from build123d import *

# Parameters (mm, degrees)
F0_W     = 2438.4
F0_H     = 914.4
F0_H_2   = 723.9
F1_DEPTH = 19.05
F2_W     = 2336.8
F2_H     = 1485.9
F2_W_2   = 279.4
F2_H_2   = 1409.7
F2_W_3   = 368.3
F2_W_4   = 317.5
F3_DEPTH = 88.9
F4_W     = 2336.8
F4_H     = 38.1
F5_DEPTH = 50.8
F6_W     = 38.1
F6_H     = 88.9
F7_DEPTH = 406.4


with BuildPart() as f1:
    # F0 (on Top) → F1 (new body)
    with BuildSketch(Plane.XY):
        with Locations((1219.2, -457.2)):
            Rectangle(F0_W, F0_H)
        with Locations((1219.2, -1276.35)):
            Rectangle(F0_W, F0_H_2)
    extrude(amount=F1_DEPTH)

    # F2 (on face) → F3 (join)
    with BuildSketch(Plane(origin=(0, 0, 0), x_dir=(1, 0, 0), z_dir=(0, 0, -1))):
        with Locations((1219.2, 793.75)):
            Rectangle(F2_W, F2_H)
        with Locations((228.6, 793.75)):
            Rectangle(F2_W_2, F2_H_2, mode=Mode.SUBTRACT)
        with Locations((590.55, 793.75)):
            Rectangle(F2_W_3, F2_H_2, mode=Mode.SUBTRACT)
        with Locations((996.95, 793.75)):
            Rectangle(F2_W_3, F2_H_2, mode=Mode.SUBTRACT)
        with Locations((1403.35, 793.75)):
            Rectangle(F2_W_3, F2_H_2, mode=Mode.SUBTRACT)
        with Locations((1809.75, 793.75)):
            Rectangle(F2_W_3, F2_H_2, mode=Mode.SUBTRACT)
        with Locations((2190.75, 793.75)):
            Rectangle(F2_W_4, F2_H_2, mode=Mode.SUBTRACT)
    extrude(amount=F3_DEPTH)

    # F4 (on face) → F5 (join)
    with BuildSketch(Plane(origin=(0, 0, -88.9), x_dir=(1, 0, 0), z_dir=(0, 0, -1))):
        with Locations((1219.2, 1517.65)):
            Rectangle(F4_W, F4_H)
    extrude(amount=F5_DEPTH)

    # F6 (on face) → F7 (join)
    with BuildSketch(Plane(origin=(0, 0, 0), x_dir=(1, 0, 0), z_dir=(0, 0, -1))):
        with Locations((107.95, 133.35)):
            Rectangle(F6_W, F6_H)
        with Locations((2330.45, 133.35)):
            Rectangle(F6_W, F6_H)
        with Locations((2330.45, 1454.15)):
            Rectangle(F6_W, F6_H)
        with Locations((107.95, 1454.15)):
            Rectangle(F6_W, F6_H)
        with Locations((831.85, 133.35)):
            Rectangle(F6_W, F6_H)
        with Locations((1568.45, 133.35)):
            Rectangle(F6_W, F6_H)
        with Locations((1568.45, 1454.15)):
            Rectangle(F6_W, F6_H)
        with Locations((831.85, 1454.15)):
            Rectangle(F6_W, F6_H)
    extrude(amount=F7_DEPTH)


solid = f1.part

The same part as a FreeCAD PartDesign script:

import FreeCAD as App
import Part
import Sketcher

V = App.Vector
Q = App.Units.Quantity

doc = App.newDocument("Part")
body = doc.addObject("PartDesign::Body", "Body")

# Sketch on XY plane
sketch1 = body.newObject("Sketcher::SketchObject", "Sketch")
sketch1.AttachmentSupport = (doc.getObject("XY_Plane"), [""])
sketch1.MapMode = "FlatFace"
sketch1.addGeometry([
    Part.LineSegment(V(0, 0, 0), V(0, -1638.3, 0)),
    Part.LineSegment(V(0, -1638.3, 0), V(2438.4, -1638.3, 0)),
    Part.LineSegment(V(2438.4, -1638.3, 0), V(2438.4, 0, 0)),
    Part.LineSegment(V(2438.4, 0, 0), V(0, 0, 0)),
], False)
sketch1.addConstraint([
    Sketcher.Constraint("Coincident", 0, 2, 1, 1),
    Sketcher.Constraint("Coincident", 1, 2, 2, 1),
    Sketcher.Constraint("Coincident", 2, 2, 3, 1),
    Sketcher.Constraint("Coincident", 3, 2, 0, 1),
    Sketcher.Constraint("Vertical", 0),
    Sketcher.Constraint("Horizontal", 1),
    Sketcher.Constraint("Vertical", 2),
    Sketcher.Constraint("Horizontal", 3),
    Sketcher.Constraint("Coincident", 3, 2, -1, 1),
    Sketcher.Constraint("DistanceX", 1, 1, 1, 2, Q("96 in")),
    Sketcher.Constraint("DistanceY", 0, 2, 0, 1, Q("64.5 in")),
])
pad1 = body.newObject("PartDesign::Pad", "Pad")
pad1.Profile = sketch1
pad1.Length = Q("0.75 in")

# Sketch on XY plane
sketch2 = body.newObject("Sketcher::SketchObject", "Sketch001")
sketch2.AttachmentSupport = (doc.getObject("XY_Plane"), [""])
sketch2.MapMode = "FlatFace"
sketch2.addGeometry([
    Part.LineSegment(V(50.8, -1536.7, 0), V(50.8, -50.8, 0)),  # 0
    Part.LineSegment(V(50.8, -50.8, 0), V(2387.6, -50.8, 0)),  # 1
    Part.LineSegment(V(2387.6, -50.8, 0), V(2387.6, -1536.7, 0)),  # 2
    Part.LineSegment(V(2387.6, -1536.7, 0), V(50.8, -1536.7, 0)),  # 3
    Part.LineSegment(V(368.3, -88.9, 0), V(88.9, -88.9, 0)),  # 4
    Part.LineSegment(V(88.9, -88.9, 0), V(88.9, -1498.6, 0)),  # 5
    Part.LineSegment(V(88.9, -1498.6, 0), V(368.3, -1498.6, 0)),  # 6
    Part.LineSegment(V(368.3, -1498.6, 0), V(368.3, -88.9, 0)),  # 7
    Part.LineSegment(V(774.7, -88.9, 0), V(406.4, -88.9, 0)),  # 8
    Part.LineSegment(V(406.4, -88.9, 0), V(406.4, -1498.6, 0)),  # 9
    Part.LineSegment(V(406.4, -1498.6, 0), V(774.7, -1498.6, 0)),  # 10
    Part.LineSegment(V(774.7, -1498.6, 0), V(774.7, -88.9, 0)),  # 11
    Part.LineSegment(V(1181.1, -88.9, 0), V(812.8, -88.9, 0)),  # 12
    Part.LineSegment(V(812.8, -88.9, 0), V(812.8, -1498.6, 0)),  # 13
    Part.LineSegment(V(812.8, -1498.6, 0), V(1181.1, -1498.6, 0)),  # 14
    Part.LineSegment(V(1181.1, -1498.6, 0), V(1181.1, -88.9, 0)),  # 15
    Part.LineSegment(V(1587.5, -88.9, 0), V(1219.2, -88.9, 0)),  # 16
    Part.LineSegment(V(1219.2, -88.9, 0), V(1219.2, -1498.6, 0)),  # 17
    Part.LineSegment(V(1219.2, -1498.6, 0), V(1587.5, -1498.6, 0)),  # 18
    Part.LineSegment(V(1587.5, -1498.6, 0), V(1587.5, -88.9, 0)),  # 19
    Part.LineSegment(V(1993.9, -88.9, 0), V(1625.6, -88.9, 0)),  # 20
    Part.LineSegment(V(1625.6, -88.9, 0), V(1625.6, -1498.6, 0)),  # 21
    Part.LineSegment(V(1625.6, -1498.6, 0), V(1993.9, -1498.6, 0)),  # 22
    Part.LineSegment(V(1993.9, -1498.6, 0), V(1993.9, -88.9, 0)),  # 23
    Part.LineSegment(V(2349.5, -88.9, 0), V(2032, -88.9, 0)),  # 24
    Part.LineSegment(V(2032, -88.9, 0), V(2032, -1498.6, 0)),  # 25
    Part.LineSegment(V(2032, -1498.6, 0), V(2349.5, -1498.6, 0)),  # 26
    Part.LineSegment(V(2349.5, -1498.6, 0), V(2349.5, -88.9, 0)),  # 27
], False)
sketch2.addConstraint([
    Sketcher.Constraint("Coincident", 0, 2, 1, 1),
    Sketcher.Constraint("Coincident", 1, 2, 2, 1),
    Sketcher.Constraint("Coincident", 2, 2, 3, 1),
    Sketcher.Constraint("Coincident", 3, 2, 0, 1),
    Sketcher.Constraint("Coincident", 4, 2, 5, 1),
    Sketcher.Constraint("Coincident", 5, 2, 6, 1),
    Sketcher.Constraint("Coincident", 6, 2, 7, 1),
    Sketcher.Constraint("Coincident", 7, 2, 4, 1),
    Sketcher.Constraint("Coincident", 8, 2, 9, 1),
    Sketcher.Constraint("Coincident", 9, 2, 10, 1),
    Sketcher.Constraint("Coincident", 10, 2, 11, 1),
    Sketcher.Constraint("Coincident", 11, 2, 8, 1),
    Sketcher.Constraint("Coincident", 12, 2, 13, 1),
    Sketcher.Constraint("Coincident", 13, 2, 14, 1),
    Sketcher.Constraint("Coincident", 14, 2, 15, 1),
    Sketcher.Constraint("Coincident", 15, 2, 12, 1),
    Sketcher.Constraint("Coincident", 16, 2, 17, 1),
    Sketcher.Constraint("Coincident", 17, 2, 18, 1),
    Sketcher.Constraint("Coincident", 18, 2, 19, 1),
    Sketcher.Constraint("Coincident", 19, 2, 16, 1),
    Sketcher.Constraint("Coincident", 20, 2, 21, 1),
    Sketcher.Constraint("Coincident", 21, 2, 22, 1),
    Sketcher.Constraint("Coincident", 22, 2, 23, 1),
    Sketcher.Constraint("Coincident", 23, 2, 20, 1),
    Sketcher.Constraint("Coincident", 24, 2, 25, 1),
    Sketcher.Constraint("Coincident", 25, 2, 26, 1),
    Sketcher.Constraint("Coincident", 26, 2, 27, 1),
    Sketcher.Constraint("Coincident", 27, 2, 24, 1),
    Sketcher.Constraint("Vertical", 0),
    Sketcher.Constraint("Horizontal", 1),
    Sketcher.Constraint("Vertical", 2),
    Sketcher.Constraint("Horizontal", 3),
    Sketcher.Constraint("Horizontal", 4),
    Sketcher.Constraint("Vertical", 5),
    Sketcher.Constraint("Horizontal", 6),
    Sketcher.Constraint("Vertical", 7),
    Sketcher.Constraint("Horizontal", 8),
    Sketcher.Constraint("Vertical", 9),
    Sketcher.Constraint("Horizontal", 10),
    Sketcher.Constraint("Vertical", 11),
    Sketcher.Constraint("Horizontal", 12),
    Sketcher.Constraint("Vertical", 13),
    Sketcher.Constraint("Horizontal", 14),
    Sketcher.Constraint("Vertical", 15),
    Sketcher.Constraint("Horizontal", 16),
    Sketcher.Constraint("Vertical", 17),
    Sketcher.Constraint("Horizontal", 18),
    Sketcher.Constraint("Vertical", 19),
    Sketcher.Constraint("Horizontal", 20),
    Sketcher.Constraint("Vertical", 21),
    Sketcher.Constraint("Horizontal", 22),
    Sketcher.Constraint("Vertical", 23),
    Sketcher.Constraint("Horizontal", 24),
    Sketcher.Constraint("Vertical", 25),
    Sketcher.Constraint("Horizontal", 26),
    Sketcher.Constraint("Vertical", 27),
    Sketcher.Constraint("Horizontal", 7, 2, 8, 2),
    Sketcher.Constraint("Horizontal", 6, 2, 9, 2),
    Sketcher.Constraint("Horizontal", 11, 2, 12, 2),
    Sketcher.Constraint("Horizontal", 10, 2, 13, 2),
    Sketcher.Constraint("Horizontal", 15, 2, 16, 2),
    Sketcher.Constraint("Horizontal", 14, 2, 17, 2),
    Sketcher.Constraint("Horizontal", 19, 2, 20, 2),
    Sketcher.Constraint("Horizontal", 18, 2, 21, 2),
    Sketcher.Constraint("Horizontal", 23, 2, 24, 2),
    Sketcher.Constraint("Horizontal", 22, 2, 25, 2),
    Sketcher.Constraint("Equal", 10, 12),
    Sketcher.Constraint("Equal", 14, 16),
    Sketcher.Constraint("Equal", 18, 20),
    Sketcher.Constraint("DistanceX", 1, 1, 1, 2, Q("92 in")),
    Sketcher.Constraint("DistanceX", 4, 2, 4, 1, Q("11 in")),
    Sketcher.Constraint("DistanceX", 8, 2, 8, 1, Q("14.5 in")),
    Sketcher.Constraint("DistanceX", 24, 2, 24, 1, Q("12.5 in")),
    Sketcher.Constraint("DistanceY", 0, 1, 0, 2, Q("58.5 in")),
    Sketcher.Constraint("DistanceY", 5, 2, 5, 1, Q("55.5 in")),
    Sketcher.Constraint("DistanceX", -1, 1, 0, 2, Q("2 in")),
    Sketcher.Constraint("DistanceY", 0, 2, -1, 1, Q("2 in")),
    Sketcher.Constraint("DistanceY", 5, 2, -1, 1, Q("59 in")),
    Sketcher.Constraint("DistanceX", -1, 1, 8, 2, Q("16 in")),
    Sketcher.Constraint("DistanceX", -1, 1, 12, 2, Q("32 in")),
    Sketcher.Constraint("DistanceX", -1, 1, 16, 2, Q("48 in")),
    Sketcher.Constraint("DistanceX", -1, 1, 20, 2, Q("64 in")),
    Sketcher.Constraint("DistanceX", -1, 1, 24, 2, Q("80 in")),
    Sketcher.Constraint("DistanceX", 6, 2, 10, 2, Q("16 in")),
])
pad2 = body.newObject("PartDesign::Pad", "Pad001")
pad2.Profile = sketch2
pad2.Length = Q("3.5 in")
pad2.Reversed = True

# Sketch on XY plane
sketch3 = body.newObject("Sketcher::SketchObject", "Sketch002")
sketch3.AttachmentSupport = (doc.getObject("XY_Plane"), [""])
sketch3.MapMode = "FlatFace"
sketch3.AttachmentOffset = App.Placement(V(0, 0, -3.5 * 25.4), App.Rotation())
sketch3.addGeometry([
    Part.LineSegment(V(50.8, -1536.7, 0), V(50.8, -1498.6, 0)),
    Part.LineSegment(V(50.8, -1498.6, 0), V(2387.6, -1498.6, 0)),
    Part.LineSegment(V(2387.6, -1498.6, 0), V(2387.6, -1536.7, 0)),
    Part.LineSegment(V(2387.6, -1536.7, 0), V(50.8, -1536.7, 0)),
], False)
sketch3.addConstraint([
    Sketcher.Constraint("Coincident", 0, 2, 1, 1),
    Sketcher.Constraint("Coincident", 1, 2, 2, 1),
    Sketcher.Constraint("Coincident", 2, 2, 3, 1),
    Sketcher.Constraint("Coincident", 3, 2, 0, 1),
    Sketcher.Constraint("Vertical", 0),
    Sketcher.Constraint("Horizontal", 1),
    Sketcher.Constraint("Vertical", 2),
    Sketcher.Constraint("Horizontal", 3),
    Sketcher.Constraint("DistanceX", 1, 1, 1, 2, Q("92 in")),
    Sketcher.Constraint("DistanceY", 0, 1, 0, 2, Q("1.5 in")),
    Sketcher.Constraint("DistanceX", -1, 1, 0, 2, Q("2 in")),
    Sketcher.Constraint("DistanceY", 0, 2, -1, 1, Q("59 in")),
])
pad3 = body.newObject("PartDesign::Pad", "Pad002")
pad3.Profile = sketch3
pad3.Length = Q("2 in")
pad3.Reversed = True

# Sketch on XY plane
sketch4 = body.newObject("Sketcher::SketchObject", "Sketch003")
sketch4.AttachmentSupport = (doc.getObject("XY_Plane"), [""])
sketch4.MapMode = "FlatFace"
sketch4.addGeometry([
    Part.LineSegment(V(88.9, -177.8, 0), V(88.9, -88.9, 0)),  # 0
    Part.LineSegment(V(88.9, -88.9, 0), V(127, -88.9, 0)),  # 1
    Part.LineSegment(V(127, -88.9, 0), V(127, -177.8, 0)),  # 2
    Part.LineSegment(V(127, -177.8, 0), V(88.9, -177.8, 0)),  # 3
    Part.LineSegment(V(2311.4, -177.8, 0), V(2311.4, -88.9, 0)),  # 4
    Part.LineSegment(V(2311.4, -88.9, 0), V(2349.5, -88.9, 0)),  # 5
    Part.LineSegment(V(2349.5, -88.9, 0), V(2349.5, -177.8, 0)),  # 6
    Part.LineSegment(V(2349.5, -177.8, 0), V(2311.4, -177.8, 0)),  # 7
    Part.LineSegment(V(2311.4, -1498.6, 0), V(2311.4, -1409.7, 0)),  # 8
    Part.LineSegment(V(2311.4, -1409.7, 0), V(2349.5, -1409.7, 0)),  # 9
    Part.LineSegment(V(2349.5, -1409.7, 0), V(2349.5, -1498.6, 0)),  # 10
    Part.LineSegment(V(2349.5, -1498.6, 0), V(2311.4, -1498.6, 0)),  # 11
    Part.LineSegment(V(88.9, -1498.6, 0), V(88.9, -1409.7, 0)),  # 12
    Part.LineSegment(V(88.9, -1409.7, 0), V(127, -1409.7, 0)),  # 13
    Part.LineSegment(V(127, -1409.7, 0), V(127, -1498.6, 0)),  # 14
    Part.LineSegment(V(127, -1498.6, 0), V(88.9, -1498.6, 0)),  # 15
    Part.LineSegment(V(812.8, -177.8, 0), V(812.8, -88.9, 0)),  # 16
    Part.LineSegment(V(812.8, -88.9, 0), V(850.9, -88.9, 0)),  # 17
    Part.LineSegment(V(850.9, -88.9, 0), V(850.9, -177.8, 0)),  # 18
    Part.LineSegment(V(850.9, -177.8, 0), V(812.8, -177.8, 0)),  # 19
    Part.LineSegment(V(1549.4, -177.8, 0), V(1549.4, -88.9, 0)),  # 20
    Part.LineSegment(V(1549.4, -88.9, 0), V(1587.5, -88.9, 0)),  # 21
    Part.LineSegment(V(1587.5, -88.9, 0), V(1587.5, -177.8, 0)),  # 22
    Part.LineSegment(V(1587.5, -177.8, 0), V(1549.4, -177.8, 0)),  # 23
    Part.LineSegment(V(1549.4, -1498.6, 0), V(1549.4, -1409.7, 0)),  # 24
    Part.LineSegment(V(1549.4, -1409.7, 0), V(1587.5, -1409.7, 0)),  # 25
    Part.LineSegment(V(1587.5, -1409.7, 0), V(1587.5, -1498.6, 0)),  # 26
    Part.LineSegment(V(1587.5, -1498.6, 0), V(1549.4, -1498.6, 0)),  # 27
    Part.LineSegment(V(812.8, -1498.6, 0), V(812.8, -1409.7, 0)),  # 28
    Part.LineSegment(V(812.8, -1409.7, 0), V(850.9, -1409.7, 0)),  # 29
    Part.LineSegment(V(850.9, -1409.7, 0), V(850.9, -1498.6, 0)),  # 30
    Part.LineSegment(V(850.9, -1498.6, 0), V(812.8, -1498.6, 0)),  # 31
], False)
sketch4.addConstraint([
    Sketcher.Constraint("Coincident", 0, 2, 1, 1),
    Sketcher.Constraint("Coincident", 1, 2, 2, 1),
    Sketcher.Constraint("Coincident", 2, 2, 3, 1),
    Sketcher.Constraint("Coincident", 3, 2, 0, 1),
    Sketcher.Constraint("Coincident", 4, 2, 5, 1),
    Sketcher.Constraint("Coincident", 5, 2, 6, 1),
    Sketcher.Constraint("Coincident", 6, 2, 7, 1),
    Sketcher.Constraint("Coincident", 7, 2, 4, 1),
    Sketcher.Constraint("Coincident", 8, 2, 9, 1),
    Sketcher.Constraint("Coincident", 9, 2, 10, 1),
    Sketcher.Constraint("Coincident", 10, 2, 11, 1),
    Sketcher.Constraint("Coincident", 11, 2, 8, 1),
    Sketcher.Constraint("Coincident", 12, 2, 13, 1),
    Sketcher.Constraint("Coincident", 13, 2, 14, 1),
    Sketcher.Constraint("Coincident", 14, 2, 15, 1),
    Sketcher.Constraint("Coincident", 15, 2, 12, 1),
    Sketcher.Constraint("Coincident", 16, 2, 17, 1),
    Sketcher.Constraint("Coincident", 17, 2, 18, 1),
    Sketcher.Constraint("Coincident", 18, 2, 19, 1),
    Sketcher.Constraint("Coincident", 19, 2, 16, 1),
    Sketcher.Constraint("Coincident", 20, 2, 21, 1),
    Sketcher.Constraint("Coincident", 21, 2, 22, 1),
    Sketcher.Constraint("Coincident", 22, 2, 23, 1),
    Sketcher.Constraint("Coincident", 23, 2, 20, 1),
    Sketcher.Constraint("Coincident", 24, 2, 25, 1),
    Sketcher.Constraint("Coincident", 25, 2, 26, 1),
    Sketcher.Constraint("Coincident", 26, 2, 27, 1),
    Sketcher.Constraint("Coincident", 27, 2, 24, 1),
    Sketcher.Constraint("Coincident", 28, 2, 29, 1),
    Sketcher.Constraint("Coincident", 29, 2, 30, 1),
    Sketcher.Constraint("Coincident", 30, 2, 31, 1),
    Sketcher.Constraint("Coincident", 31, 2, 28, 1),
    Sketcher.Constraint("Vertical", 0),
    Sketcher.Constraint("Horizontal", 1),
    Sketcher.Constraint("Vertical", 2),
    Sketcher.Constraint("Horizontal", 3),
    Sketcher.Constraint("Vertical", 4),
    Sketcher.Constraint("Horizontal", 5),
    Sketcher.Constraint("Vertical", 6),
    Sketcher.Constraint("Horizontal", 7),
    Sketcher.Constraint("Vertical", 8),
    Sketcher.Constraint("Horizontal", 9),
    Sketcher.Constraint("Vertical", 10),
    Sketcher.Constraint("Horizontal", 11),
    Sketcher.Constraint("Vertical", 12),
    Sketcher.Constraint("Horizontal", 13),
    Sketcher.Constraint("Vertical", 14),
    Sketcher.Constraint("Horizontal", 15),
    Sketcher.Constraint("Vertical", 16),
    Sketcher.Constraint("Horizontal", 17),
    Sketcher.Constraint("Vertical", 18),
    Sketcher.Constraint("Horizontal", 19),
    Sketcher.Constraint("Vertical", 20),
    Sketcher.Constraint("Horizontal", 21),
    Sketcher.Constraint("Vertical", 22),
    Sketcher.Constraint("Horizontal", 23),
    Sketcher.Constraint("Vertical", 24),
    Sketcher.Constraint("Horizontal", 25),
    Sketcher.Constraint("Vertical", 26),
    Sketcher.Constraint("Horizontal", 27),
    Sketcher.Constraint("Vertical", 28),
    Sketcher.Constraint("Horizontal", 29),
    Sketcher.Constraint("Vertical", 30),
    Sketcher.Constraint("Horizontal", 31),
    Sketcher.Constraint("Horizontal", 1, 2, 4, 2),
    Sketcher.Constraint("Horizontal", 3, 2, 6, 2),
    Sketcher.Constraint("Horizontal", 9, 2, 12, 2),
    Sketcher.Constraint("Horizontal", 11, 2, 14, 2),
    Sketcher.Constraint("Horizontal", 5, 2, 16, 2),
    Sketcher.Constraint("Horizontal", 7, 2, 18, 2),
    Sketcher.Constraint("Horizontal", 17, 2, 20, 2),
    Sketcher.Constraint("Horizontal", 19, 2, 22, 2),
    Sketcher.Constraint("Horizontal", 13, 2, 24, 2),
    Sketcher.Constraint("Horizontal", 15, 2, 26, 2),
    Sketcher.Constraint("Horizontal", 25, 2, 28, 2),
    Sketcher.Constraint("Horizontal", 27, 2, 30, 2),
    Sketcher.Constraint("Vertical", 7, 2, 8, 2),
    Sketcher.Constraint("Vertical", 6, 2, 9, 2),
    Sketcher.Constraint("Vertical", 3, 2, 12, 2),
    Sketcher.Constraint("Vertical", 2, 2, 13, 2),
    Sketcher.Constraint("Vertical", 23, 2, 24, 2),
    Sketcher.Constraint("Vertical", 22, 2, 25, 2),
    Sketcher.Constraint("Vertical", 19, 2, 28, 2),
    Sketcher.Constraint("Vertical", 18, 2, 29, 2),
    Sketcher.Constraint("Equal", 3, 5),
    Sketcher.Constraint("Equal", 15, 17),
    Sketcher.Constraint("Equal", 19, 21),
    Sketcher.Constraint("Equal", 6, 8),
    Sketcher.Constraint("DistanceX", 1, 1, 1, 2, Q("1.5 in")),
    Sketcher.Constraint("DistanceY", 0, 1, 0, 2, Q("3.5 in")),
    Sketcher.Constraint("DistanceX", -1, 1, 1, 2, Q("5 in")),
    Sketcher.Constraint("DistanceY", 2, 2, -1, 1, Q("7 in")),
    Sketcher.Constraint("DistanceX", -1, 1, 4, 2, Q("91 in")),
    Sketcher.Constraint("DistanceY", 10, 2, -1, 1, Q("59 in")),
    Sketcher.Constraint("DistanceX", -1, 1, 16, 2, Q("32 in")),
    Sketcher.Constraint("DistanceX", -1, 1, 20, 2, Q("61 in")),
])
pad4 = body.newObject("PartDesign::Pad", "Pad003")
pad4.Profile = sketch4
pad4.Length = Q("16 in")
pad4.Reversed = True

doc.recompute()
